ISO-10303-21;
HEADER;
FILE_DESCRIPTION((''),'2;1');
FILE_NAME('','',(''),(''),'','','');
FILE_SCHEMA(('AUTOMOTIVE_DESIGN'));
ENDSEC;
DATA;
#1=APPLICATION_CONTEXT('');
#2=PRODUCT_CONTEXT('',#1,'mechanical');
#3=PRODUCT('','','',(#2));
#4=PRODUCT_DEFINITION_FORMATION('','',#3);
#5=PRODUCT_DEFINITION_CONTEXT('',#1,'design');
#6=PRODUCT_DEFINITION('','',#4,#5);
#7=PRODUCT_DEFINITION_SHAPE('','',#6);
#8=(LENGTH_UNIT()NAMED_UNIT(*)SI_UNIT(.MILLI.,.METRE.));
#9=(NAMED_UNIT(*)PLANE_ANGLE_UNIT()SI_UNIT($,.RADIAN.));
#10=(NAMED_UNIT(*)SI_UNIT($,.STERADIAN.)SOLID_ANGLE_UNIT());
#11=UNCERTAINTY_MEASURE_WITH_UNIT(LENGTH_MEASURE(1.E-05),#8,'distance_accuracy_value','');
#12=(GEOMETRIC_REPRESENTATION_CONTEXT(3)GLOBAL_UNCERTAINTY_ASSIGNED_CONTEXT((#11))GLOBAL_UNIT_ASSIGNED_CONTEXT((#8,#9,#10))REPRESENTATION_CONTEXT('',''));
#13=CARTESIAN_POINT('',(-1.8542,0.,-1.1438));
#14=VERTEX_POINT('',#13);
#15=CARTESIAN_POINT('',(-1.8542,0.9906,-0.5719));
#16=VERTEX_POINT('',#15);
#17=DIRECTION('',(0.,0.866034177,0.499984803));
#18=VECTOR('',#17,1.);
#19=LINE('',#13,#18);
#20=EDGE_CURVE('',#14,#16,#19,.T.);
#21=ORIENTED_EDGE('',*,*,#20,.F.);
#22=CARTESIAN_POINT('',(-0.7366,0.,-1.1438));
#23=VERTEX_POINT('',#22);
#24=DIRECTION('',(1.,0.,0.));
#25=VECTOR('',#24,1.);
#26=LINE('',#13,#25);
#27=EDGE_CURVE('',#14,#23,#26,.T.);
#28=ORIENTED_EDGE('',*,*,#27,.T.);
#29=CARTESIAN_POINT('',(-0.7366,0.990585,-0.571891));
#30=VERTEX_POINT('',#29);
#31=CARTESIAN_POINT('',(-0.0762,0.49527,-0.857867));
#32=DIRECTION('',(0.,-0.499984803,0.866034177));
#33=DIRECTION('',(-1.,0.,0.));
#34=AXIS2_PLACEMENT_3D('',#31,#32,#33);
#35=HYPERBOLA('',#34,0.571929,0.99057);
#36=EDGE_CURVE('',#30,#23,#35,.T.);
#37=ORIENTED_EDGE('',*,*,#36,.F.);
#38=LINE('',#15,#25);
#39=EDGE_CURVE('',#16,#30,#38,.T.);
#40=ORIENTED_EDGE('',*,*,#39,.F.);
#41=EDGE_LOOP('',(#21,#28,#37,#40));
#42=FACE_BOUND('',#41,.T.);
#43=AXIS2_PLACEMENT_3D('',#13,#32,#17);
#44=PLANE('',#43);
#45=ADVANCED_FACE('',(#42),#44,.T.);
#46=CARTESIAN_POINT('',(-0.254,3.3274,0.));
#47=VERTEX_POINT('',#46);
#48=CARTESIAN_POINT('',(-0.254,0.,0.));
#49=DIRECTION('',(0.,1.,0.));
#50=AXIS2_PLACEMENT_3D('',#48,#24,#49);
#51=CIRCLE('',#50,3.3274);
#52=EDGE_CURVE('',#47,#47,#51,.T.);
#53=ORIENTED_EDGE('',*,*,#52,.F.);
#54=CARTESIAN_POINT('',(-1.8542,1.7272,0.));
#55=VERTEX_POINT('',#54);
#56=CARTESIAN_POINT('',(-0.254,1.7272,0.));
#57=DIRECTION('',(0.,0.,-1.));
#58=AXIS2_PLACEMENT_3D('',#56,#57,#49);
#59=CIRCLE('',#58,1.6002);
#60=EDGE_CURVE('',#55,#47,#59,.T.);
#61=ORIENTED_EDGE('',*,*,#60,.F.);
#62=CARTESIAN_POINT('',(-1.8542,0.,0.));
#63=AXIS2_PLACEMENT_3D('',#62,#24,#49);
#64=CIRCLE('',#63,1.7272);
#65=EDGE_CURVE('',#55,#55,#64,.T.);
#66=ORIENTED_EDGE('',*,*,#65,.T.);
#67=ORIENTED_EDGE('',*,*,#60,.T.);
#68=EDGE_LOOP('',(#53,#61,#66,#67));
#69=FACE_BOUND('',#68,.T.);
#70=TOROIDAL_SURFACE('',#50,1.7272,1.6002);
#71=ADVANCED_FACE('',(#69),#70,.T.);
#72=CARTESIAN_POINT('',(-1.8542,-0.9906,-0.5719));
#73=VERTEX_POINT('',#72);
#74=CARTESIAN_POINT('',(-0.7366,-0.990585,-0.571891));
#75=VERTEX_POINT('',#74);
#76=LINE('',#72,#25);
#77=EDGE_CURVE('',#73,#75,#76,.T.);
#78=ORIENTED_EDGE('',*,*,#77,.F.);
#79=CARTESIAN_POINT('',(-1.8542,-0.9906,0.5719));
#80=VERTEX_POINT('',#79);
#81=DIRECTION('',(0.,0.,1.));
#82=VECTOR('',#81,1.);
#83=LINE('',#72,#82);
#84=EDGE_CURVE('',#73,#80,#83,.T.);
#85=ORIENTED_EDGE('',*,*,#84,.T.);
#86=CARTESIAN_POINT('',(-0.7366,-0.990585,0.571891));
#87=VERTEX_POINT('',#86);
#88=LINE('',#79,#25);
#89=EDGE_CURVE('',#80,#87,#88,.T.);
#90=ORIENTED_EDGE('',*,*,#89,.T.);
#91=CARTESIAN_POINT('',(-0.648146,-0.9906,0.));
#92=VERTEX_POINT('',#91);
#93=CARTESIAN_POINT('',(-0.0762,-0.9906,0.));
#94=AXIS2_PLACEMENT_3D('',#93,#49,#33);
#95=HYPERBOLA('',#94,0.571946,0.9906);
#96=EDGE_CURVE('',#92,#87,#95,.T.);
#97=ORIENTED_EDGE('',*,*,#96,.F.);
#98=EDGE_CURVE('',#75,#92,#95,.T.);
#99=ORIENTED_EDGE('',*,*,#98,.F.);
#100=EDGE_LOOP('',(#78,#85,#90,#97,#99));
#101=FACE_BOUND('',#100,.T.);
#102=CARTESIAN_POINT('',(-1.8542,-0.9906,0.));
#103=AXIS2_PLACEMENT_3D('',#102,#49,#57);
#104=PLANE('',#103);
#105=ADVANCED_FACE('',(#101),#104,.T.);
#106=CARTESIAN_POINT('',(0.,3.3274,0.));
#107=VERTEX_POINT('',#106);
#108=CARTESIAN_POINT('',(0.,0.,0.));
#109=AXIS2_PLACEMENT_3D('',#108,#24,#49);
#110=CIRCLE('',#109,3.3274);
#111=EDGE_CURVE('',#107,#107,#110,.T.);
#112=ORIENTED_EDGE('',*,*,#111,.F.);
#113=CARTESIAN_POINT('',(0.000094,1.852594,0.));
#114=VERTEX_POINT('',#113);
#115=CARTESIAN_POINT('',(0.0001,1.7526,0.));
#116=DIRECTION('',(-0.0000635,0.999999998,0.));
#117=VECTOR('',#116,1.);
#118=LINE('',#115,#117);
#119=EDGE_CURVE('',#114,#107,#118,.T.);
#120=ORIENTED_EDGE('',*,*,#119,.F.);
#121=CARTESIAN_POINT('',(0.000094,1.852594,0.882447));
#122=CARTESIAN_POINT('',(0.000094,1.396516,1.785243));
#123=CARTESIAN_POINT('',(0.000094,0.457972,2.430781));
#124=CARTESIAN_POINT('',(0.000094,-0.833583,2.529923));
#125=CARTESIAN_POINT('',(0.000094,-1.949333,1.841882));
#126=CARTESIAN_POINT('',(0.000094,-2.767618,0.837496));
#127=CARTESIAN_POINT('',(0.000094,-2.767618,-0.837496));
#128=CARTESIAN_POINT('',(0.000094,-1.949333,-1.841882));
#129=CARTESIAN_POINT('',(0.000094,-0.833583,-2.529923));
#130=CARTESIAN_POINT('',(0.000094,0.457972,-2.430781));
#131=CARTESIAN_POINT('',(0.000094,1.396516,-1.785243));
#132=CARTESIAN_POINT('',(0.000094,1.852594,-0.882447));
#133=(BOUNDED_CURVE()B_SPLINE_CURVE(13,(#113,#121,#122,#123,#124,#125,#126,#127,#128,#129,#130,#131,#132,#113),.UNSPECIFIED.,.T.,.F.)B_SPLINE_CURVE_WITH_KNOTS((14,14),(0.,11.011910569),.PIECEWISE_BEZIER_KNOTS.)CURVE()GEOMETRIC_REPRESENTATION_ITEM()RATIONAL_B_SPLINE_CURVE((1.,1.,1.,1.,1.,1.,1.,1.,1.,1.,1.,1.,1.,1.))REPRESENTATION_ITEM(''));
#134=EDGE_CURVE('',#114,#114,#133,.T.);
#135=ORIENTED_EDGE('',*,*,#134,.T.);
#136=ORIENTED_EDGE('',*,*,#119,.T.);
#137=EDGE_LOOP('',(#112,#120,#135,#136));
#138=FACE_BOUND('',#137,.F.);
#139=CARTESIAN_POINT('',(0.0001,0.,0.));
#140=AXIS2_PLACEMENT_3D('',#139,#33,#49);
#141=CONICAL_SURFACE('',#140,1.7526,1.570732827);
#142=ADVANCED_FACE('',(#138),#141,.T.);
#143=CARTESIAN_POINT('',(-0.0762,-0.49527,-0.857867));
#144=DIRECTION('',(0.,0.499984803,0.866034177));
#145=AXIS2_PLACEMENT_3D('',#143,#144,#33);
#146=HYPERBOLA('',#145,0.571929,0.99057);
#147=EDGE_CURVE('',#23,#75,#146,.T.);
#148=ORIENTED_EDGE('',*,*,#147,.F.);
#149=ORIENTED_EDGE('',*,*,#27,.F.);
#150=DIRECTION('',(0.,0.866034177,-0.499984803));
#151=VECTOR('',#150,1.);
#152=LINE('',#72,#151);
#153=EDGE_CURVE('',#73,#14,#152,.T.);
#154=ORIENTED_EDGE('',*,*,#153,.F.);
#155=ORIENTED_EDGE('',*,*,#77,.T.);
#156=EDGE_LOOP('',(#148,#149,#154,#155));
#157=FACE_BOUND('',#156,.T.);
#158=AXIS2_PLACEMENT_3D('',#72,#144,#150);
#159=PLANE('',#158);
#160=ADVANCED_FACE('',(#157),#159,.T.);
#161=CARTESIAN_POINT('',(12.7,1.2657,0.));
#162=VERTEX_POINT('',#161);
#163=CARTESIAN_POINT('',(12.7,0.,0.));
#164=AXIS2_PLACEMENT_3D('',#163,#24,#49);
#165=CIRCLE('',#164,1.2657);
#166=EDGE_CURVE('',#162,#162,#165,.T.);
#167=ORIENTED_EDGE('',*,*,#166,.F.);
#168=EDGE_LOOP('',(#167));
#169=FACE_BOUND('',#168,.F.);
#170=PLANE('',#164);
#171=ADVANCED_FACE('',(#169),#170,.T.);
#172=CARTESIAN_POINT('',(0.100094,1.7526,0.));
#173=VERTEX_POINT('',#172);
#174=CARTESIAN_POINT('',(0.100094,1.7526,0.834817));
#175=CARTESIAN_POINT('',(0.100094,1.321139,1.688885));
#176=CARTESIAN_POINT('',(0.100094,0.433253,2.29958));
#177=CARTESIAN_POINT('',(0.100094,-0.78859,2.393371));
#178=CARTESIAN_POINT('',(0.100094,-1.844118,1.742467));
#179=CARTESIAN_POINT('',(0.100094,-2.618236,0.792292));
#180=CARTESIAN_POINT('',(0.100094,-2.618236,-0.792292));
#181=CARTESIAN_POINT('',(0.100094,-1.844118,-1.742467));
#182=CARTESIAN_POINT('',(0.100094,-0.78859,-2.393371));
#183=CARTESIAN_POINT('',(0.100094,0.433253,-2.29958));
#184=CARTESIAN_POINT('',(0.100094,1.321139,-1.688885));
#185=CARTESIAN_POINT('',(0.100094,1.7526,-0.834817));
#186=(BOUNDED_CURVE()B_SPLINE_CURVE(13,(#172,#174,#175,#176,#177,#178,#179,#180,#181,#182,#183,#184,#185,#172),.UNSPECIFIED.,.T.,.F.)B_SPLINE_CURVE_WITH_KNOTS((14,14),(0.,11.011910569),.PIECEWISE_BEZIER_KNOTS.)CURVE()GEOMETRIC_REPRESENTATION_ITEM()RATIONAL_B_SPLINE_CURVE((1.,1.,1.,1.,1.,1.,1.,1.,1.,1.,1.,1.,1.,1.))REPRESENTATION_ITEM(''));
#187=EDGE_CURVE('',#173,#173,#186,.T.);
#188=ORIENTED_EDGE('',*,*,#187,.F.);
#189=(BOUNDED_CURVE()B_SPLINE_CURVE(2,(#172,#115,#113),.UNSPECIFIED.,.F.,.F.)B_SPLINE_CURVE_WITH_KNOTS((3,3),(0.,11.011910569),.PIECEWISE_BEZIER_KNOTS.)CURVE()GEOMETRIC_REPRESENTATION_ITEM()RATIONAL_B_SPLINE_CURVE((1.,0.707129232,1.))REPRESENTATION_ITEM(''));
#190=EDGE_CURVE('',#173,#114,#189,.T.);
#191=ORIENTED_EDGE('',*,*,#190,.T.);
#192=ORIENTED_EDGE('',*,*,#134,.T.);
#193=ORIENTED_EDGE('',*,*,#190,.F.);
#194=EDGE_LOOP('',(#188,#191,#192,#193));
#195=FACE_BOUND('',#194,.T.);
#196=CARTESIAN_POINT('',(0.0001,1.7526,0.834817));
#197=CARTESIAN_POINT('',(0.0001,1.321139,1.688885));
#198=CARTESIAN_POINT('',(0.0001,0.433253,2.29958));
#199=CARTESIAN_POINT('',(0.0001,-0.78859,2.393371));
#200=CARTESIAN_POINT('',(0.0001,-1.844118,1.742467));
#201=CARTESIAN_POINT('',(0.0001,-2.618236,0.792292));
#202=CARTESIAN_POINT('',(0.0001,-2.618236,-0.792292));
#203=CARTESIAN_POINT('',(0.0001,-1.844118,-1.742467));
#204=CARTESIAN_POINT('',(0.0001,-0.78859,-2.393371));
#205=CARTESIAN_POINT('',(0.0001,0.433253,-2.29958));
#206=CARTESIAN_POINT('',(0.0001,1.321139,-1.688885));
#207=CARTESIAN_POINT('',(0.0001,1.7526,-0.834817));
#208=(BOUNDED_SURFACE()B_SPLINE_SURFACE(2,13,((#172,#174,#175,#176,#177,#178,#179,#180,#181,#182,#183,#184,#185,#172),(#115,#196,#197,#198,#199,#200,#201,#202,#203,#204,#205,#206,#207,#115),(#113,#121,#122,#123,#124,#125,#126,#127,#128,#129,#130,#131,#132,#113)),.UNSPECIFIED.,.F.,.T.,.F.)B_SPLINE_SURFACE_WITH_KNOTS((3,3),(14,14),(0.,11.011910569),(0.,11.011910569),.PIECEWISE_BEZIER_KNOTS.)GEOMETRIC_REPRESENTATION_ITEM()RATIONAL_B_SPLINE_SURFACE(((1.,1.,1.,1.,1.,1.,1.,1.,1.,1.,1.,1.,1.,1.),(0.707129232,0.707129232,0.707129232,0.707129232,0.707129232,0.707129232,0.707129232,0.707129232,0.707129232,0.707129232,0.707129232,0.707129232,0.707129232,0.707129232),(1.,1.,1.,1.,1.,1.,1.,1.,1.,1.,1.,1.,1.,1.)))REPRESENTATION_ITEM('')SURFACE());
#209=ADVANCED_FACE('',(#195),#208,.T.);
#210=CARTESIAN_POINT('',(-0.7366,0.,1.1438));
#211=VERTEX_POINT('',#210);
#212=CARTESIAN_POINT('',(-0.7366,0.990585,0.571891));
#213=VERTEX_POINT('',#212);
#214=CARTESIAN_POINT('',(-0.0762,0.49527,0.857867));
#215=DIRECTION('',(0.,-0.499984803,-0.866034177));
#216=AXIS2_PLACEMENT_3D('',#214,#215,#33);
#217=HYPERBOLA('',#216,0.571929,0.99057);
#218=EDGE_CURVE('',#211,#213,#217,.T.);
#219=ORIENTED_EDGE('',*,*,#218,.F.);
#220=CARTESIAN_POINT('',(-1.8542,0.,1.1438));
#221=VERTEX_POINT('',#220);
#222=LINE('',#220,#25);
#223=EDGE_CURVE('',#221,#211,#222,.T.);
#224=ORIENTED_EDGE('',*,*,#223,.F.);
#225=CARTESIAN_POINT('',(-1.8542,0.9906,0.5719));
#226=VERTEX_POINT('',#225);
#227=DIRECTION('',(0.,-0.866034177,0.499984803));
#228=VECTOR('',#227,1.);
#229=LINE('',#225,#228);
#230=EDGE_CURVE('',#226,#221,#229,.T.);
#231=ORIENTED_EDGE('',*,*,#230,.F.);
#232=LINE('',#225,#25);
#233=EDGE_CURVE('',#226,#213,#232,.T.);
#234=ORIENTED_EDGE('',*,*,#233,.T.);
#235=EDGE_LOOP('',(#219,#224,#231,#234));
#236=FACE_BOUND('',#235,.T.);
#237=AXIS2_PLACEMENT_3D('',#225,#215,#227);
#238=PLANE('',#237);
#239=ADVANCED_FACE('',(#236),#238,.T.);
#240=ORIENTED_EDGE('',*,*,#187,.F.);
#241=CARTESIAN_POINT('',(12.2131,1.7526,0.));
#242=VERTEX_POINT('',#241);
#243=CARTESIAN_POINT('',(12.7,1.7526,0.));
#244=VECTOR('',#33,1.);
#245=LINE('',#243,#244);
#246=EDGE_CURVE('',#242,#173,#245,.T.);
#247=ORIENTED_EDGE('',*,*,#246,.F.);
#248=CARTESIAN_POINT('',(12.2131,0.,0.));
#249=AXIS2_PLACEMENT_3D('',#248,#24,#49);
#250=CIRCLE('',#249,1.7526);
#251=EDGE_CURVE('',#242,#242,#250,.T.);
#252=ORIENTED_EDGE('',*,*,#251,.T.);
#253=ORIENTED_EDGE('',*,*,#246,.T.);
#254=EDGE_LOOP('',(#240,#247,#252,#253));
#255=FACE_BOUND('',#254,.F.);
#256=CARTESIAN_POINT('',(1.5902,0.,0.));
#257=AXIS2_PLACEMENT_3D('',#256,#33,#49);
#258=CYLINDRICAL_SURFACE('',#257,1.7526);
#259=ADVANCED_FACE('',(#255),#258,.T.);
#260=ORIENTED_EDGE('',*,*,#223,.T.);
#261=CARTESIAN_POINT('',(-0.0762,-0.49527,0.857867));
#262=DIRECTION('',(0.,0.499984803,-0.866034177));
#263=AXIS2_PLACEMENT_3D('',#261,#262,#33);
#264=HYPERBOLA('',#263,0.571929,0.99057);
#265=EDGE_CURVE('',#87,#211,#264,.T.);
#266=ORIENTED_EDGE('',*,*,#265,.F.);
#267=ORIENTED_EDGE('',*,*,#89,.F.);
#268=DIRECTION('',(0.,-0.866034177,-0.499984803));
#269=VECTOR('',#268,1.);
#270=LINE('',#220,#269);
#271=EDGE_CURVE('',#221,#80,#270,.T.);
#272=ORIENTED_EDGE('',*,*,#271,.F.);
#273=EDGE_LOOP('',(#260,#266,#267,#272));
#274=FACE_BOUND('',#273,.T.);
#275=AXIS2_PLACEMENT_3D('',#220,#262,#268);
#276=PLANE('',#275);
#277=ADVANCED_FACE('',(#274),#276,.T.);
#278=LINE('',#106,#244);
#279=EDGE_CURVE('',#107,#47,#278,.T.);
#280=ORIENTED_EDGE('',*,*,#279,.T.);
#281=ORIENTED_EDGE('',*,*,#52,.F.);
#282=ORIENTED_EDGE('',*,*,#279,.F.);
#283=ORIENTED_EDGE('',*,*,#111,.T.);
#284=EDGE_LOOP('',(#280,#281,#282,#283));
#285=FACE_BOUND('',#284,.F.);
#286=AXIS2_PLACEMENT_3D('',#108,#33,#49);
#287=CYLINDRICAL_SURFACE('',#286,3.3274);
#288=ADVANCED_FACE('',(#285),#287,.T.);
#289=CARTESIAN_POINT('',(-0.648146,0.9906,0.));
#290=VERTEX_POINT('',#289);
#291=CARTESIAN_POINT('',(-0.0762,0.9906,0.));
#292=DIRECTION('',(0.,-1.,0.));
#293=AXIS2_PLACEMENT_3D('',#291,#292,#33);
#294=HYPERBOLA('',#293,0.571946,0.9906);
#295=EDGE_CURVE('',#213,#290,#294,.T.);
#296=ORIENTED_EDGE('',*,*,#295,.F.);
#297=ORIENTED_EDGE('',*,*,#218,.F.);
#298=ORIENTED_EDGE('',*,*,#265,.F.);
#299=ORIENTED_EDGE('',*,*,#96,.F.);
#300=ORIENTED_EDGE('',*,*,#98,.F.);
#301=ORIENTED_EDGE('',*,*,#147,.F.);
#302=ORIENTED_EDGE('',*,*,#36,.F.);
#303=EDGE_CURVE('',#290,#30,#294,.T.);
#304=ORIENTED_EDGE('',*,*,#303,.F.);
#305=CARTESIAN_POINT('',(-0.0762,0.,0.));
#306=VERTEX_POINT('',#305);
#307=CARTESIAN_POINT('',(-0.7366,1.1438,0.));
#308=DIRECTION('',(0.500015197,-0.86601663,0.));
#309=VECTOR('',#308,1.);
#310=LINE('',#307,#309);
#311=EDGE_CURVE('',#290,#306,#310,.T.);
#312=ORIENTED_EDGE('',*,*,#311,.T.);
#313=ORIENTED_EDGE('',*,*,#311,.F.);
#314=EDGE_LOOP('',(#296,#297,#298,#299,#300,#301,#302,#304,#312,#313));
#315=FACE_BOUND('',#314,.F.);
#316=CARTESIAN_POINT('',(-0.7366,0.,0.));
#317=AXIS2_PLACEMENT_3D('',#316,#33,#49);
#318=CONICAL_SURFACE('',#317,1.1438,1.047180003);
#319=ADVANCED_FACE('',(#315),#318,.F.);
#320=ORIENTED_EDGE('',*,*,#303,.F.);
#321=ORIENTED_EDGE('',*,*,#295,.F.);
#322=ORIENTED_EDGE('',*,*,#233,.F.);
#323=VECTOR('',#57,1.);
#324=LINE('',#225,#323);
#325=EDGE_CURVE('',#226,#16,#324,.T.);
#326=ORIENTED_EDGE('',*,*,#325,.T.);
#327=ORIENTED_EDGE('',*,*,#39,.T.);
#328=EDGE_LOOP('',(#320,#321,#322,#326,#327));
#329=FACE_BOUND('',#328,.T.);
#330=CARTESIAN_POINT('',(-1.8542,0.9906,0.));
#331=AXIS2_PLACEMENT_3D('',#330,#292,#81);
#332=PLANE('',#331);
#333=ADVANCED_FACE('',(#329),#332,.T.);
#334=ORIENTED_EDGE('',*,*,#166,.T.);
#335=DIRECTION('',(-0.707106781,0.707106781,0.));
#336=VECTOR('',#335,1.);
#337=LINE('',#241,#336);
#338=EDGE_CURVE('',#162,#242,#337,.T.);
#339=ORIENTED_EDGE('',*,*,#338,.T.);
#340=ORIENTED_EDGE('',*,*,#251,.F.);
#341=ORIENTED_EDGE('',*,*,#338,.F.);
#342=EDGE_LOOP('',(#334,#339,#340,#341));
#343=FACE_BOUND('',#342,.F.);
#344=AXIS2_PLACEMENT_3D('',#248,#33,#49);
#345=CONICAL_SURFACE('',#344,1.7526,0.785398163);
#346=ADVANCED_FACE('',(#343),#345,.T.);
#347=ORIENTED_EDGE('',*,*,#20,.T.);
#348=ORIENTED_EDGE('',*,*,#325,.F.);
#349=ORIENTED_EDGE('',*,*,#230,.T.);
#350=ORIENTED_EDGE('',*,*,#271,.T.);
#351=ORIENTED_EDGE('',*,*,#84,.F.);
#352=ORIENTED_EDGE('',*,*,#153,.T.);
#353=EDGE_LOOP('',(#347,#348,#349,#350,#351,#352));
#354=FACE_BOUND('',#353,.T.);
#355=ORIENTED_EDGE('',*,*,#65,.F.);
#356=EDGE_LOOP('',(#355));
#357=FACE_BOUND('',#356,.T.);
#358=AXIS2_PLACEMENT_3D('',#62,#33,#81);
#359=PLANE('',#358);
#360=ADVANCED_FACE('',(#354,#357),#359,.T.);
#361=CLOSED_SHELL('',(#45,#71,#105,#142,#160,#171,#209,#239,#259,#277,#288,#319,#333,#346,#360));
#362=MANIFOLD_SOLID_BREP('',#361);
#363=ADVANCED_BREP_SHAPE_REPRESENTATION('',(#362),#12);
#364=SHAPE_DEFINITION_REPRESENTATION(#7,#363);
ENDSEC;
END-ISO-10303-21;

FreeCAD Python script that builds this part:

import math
import FreeCAD as App
import Part
import Sketcher

V = App.Vector
Q = App.Units.Quantity


def edges_at(feature, points):
    """Names of the edges that pass closest to the given points."""
    edges = feature.Shape.Edges
    near = lambda p: min(range(len(edges)), key=lambda i: edges[i].distToShape(Part.Vertex(*p))[0])
    return sorted({f"Edge{near(p) + 1}" for p in points})


def add_polygon(sketch, points):
    """Adds a closed chain of lines whose ends are joined by coincident constraints."""
    first, n = sketch.GeometryCount, len(points)
    for a, b in zip(points, points[1:] + points[:1]):
        sketch.addGeometry(Part.LineSegment(App.Vector(*a, 0), App.Vector(*b, 0)), False)
    for i in range(n):
        sketch.addConstraint(Sketcher.Constraint("Coincident", first + i, 2, first + (i + 1) % n, 1))

doc = App.newDocument("Part")
body = doc.addObject("PartDesign::Body", "Body")

# Sketch on XY plane
sketch1 = doc.addObject("Sketcher::SketchObject", "Sketch")
body.addObject(sketch1)
sketch1.AttachmentSupport = (doc.XY_Plane, [""])
sketch1.MapMode = "FlatFace"
add_polygon(sketch1, [(-0.7366, 1.1438), (-0.0762, 0), (12.7, 0), (12.7, 1.7526), (0.0001, 1.7526), (0, 3.3274), (-1.8542, 3.3274), (-1.8542, 1.1438)])  # lines 0-7
sketch1.addConstraint([
    Sketcher.Constraint("Horizontal", 1),
    Sketcher.Constraint("Vertical", 2),
    Sketcher.Constraint("Horizontal", 3),
    Sketcher.Constraint("Vertical", 4),
    Sketcher.Constraint("Horizontal", 5),
    Sketcher.Constraint("Vertical", 6),
    Sketcher.Constraint("Horizontal", 7),
    Sketcher.Constraint("PointOnObject", 0, 2, -1),
    Sketcher.Constraint("PointOnObject", 3, 2, -2),
    Sketcher.Constraint("DistanceX", 3, 2, 3, 1, Q("0.5 in")),
    Sketcher.Constraint("DistanceX", 5, 2, 5, 1, Q("0.073 in")),
    Sketcher.Constraint("DistanceX", 7, 1, 7, 2, Q("0.044 in")),
    Sketcher.Constraint("Angle", 0, Q("-59.999 deg")),
    Sketcher.Constraint("DistanceX", 1, 1, 1, 2, Q("0.503 in")),
    Sketcher.Constraint("DistanceY", 2, 1, 2, 2, Q("0.069 in")),
    Sketcher.Constraint("DistanceY", 4, 1, 4, 2, Q("0.062 in")),
])
revolution = doc.addObject("PartDesign::Revolution", "Revolution")
body.addObject(revolution)
revolution.Profile = sketch1
revolution.ReferenceAxis = (sketch1, ["H_Axis"])
revolution.Angle = 360

# Sketch on YZ plane
sketch2 = doc.addObject("Sketcher::SketchObject", "Sketch001")
body.addObject(sketch2)
sketch2.AttachmentSupport = (doc.YZ_Plane, [""])
sketch2.MapMode = "FlatFace"
sketch2.AttachmentOffset = App.Placement(V(0, 0, -0.073 * 25.4), App.Rotation())
sketch2.addGeometry([
    Part.LineSegment(V(0.9906, 0.5719, 0), V(0, 1.1438, 0)),  # 0
    Part.ArcOfCircle(Part.Circle(V(0, 0, 0), V(0, 0, 1), 1.1438), math.radians(29.998995), math.radians(90)),  # 1
    Part.ArcOfCircle(Part.Circle(V(0, 0, 0), V(0, 0, 1), 1.1438), math.radians(90), math.radians(150.001005)),  # 2
    Part.LineSegment(V(0, 1.1438, 0), V(-0.9906, 0.5719, 0)),  # 3
    Part.ArcOfCircle(Part.Circle(V(0, 0, 0), V(0, 0, 1), 1.1438), math.radians(-29.998995), math.radians(29.998995)),  # 4
    Part.LineSegment(V(0.9906, 0.5719, 0), V(0.9906, -0.5719, 0)),  # 5
    Part.LineSegment(V(-0.9906, 0.5719, 0), V(-0.9906, -0.5719, 0)),  # 6
    Part.ArcOfCircle(Part.Circle(V(0, 0, 0), V(0, 0, 1), 1.1438), math.radians(150.001005), math.radians(209.998995)),  # 7
    Part.LineSegment(V(-0.9906, -0.5719, 0), V(0, -1.1438, 0)),  # 8
    Part.ArcOfCircle(Part.Circle(V(0, 0, 0), V(0, 0, 1), 1.1438), math.radians(-150.001005), math.radians(-90)),  # 9
    Part.ArcOfCircle(Part.Circle(V(0, 0, 0), V(0, 0, 1), 1.1438), math.radians(-90), math.radians(-29.998995)),  # 10
    Part.LineSegment(V(0, -1.1438, 0), V(0.9906, -0.5719, 0)),  # 11
], False)
sketch2.addConstraint([
    Sketcher.Constraint("Coincident", 0, 1, 1, 1),
    Sketcher.Constraint("Coincident", 1, 2, 0, 2),
    Sketcher.Constraint("Coincident", 2, 1, 3, 1),
    Sketcher.Constraint("Coincident", 3, 2, 2, 2),
    Sketcher.Constraint("Coincident", 4, 1, 5, 2),
    Sketcher.Constraint("Coincident", 5, 1, 4, 2),
    Sketcher.Constraint("Coincident", 6, 1, 7, 1),
    Sketcher.Constraint("Coincident", 7, 2, 6, 2),
    Sketcher.Constraint("Coincident", 8, 1, 9, 1),
    Sketcher.Constraint("Coincident", 9, 2, 8, 2),
    Sketcher.Constraint("Coincident", 10, 1, 11, 1),
    Sketcher.Constraint("Coincident", 11, 2, 10, 2),
    Sketcher.Constraint("Vertical", 5),
    Sketcher.Constraint("Vertical", 6),
    Sketcher.Constraint("Coincident", 1, 3, -1, 1),
    Sketcher.Constraint("Coincident", 2, 3, -1, 1),
    Sketcher.Constraint("Coincident", 4, 3, -1, 1),
    Sketcher.Constraint("Coincident", 7, 3, -1, 1),
    Sketcher.Constraint("Coincident", 9, 3, -1, 1),
    Sketcher.Constraint("Coincident", 10, 3, -1, 1),
    Sketcher.Constraint("Coincident", 2, 1, 1, 2),
    Sketcher.Constraint("Coincident", 5, 1, 0, 1),
    Sketcher.Constraint("Coincident", 6, 1, 3, 2),
    Sketcher.Constraint("Coincident", 8, 1, 7, 2),
    Sketcher.Constraint("Coincident", 10, 1, 9, 2),
    Sketcher.Constraint("PointOnObject", 1, 2, -2),
    Sketcher.Constraint("PointOnObject", 9, 2, -2),
    Sketcher.Constraint("Parallel", 0, 8),
    Sketcher.Constraint("Parallel", 3, 11),
    Sketcher.Constraint("Angle", 0, Q("150.001 deg")),
    Sketcher.Constraint("Radius", 1, 1.1438),
])
pad1 = doc.addObject("PartDesign::Pad", "Pad")
body.addObject(pad1)
pad1.Profile = sketch2
pad1.Type = "UpToFirst"
doc.recompute()

fillet = doc.addObject("PartDesign::Fillet", "Fillet")
body.addObject(fillet)
fillet.Base = (pad1, edges_at(pad1, [(-1.854, -3.327, 0)]))
fillet.Radius = Q("0.063 in")
doc.recompute()

chamfer = doc.addObject("PartDesign::Chamfer", "Chamfer")
body.addObject(chamfer)
chamfer.Base = (fillet, edges_at(fillet, [(12.7, -1.753, 0)]))
chamfer.ChamferType = "Two distances"
chamfer.Size = 0.4869
chamfer.Size2 = 0.4869
doc.recompute()

fillet2 = doc.addObject("PartDesign::Fillet", "Fillet001")
body.addObject(fillet2)
fillet2.Base = (chamfer, edges_at(chamfer, [(0, -1.753, 0)]))
fillet2.Radius = 0.1

doc.recompute()
